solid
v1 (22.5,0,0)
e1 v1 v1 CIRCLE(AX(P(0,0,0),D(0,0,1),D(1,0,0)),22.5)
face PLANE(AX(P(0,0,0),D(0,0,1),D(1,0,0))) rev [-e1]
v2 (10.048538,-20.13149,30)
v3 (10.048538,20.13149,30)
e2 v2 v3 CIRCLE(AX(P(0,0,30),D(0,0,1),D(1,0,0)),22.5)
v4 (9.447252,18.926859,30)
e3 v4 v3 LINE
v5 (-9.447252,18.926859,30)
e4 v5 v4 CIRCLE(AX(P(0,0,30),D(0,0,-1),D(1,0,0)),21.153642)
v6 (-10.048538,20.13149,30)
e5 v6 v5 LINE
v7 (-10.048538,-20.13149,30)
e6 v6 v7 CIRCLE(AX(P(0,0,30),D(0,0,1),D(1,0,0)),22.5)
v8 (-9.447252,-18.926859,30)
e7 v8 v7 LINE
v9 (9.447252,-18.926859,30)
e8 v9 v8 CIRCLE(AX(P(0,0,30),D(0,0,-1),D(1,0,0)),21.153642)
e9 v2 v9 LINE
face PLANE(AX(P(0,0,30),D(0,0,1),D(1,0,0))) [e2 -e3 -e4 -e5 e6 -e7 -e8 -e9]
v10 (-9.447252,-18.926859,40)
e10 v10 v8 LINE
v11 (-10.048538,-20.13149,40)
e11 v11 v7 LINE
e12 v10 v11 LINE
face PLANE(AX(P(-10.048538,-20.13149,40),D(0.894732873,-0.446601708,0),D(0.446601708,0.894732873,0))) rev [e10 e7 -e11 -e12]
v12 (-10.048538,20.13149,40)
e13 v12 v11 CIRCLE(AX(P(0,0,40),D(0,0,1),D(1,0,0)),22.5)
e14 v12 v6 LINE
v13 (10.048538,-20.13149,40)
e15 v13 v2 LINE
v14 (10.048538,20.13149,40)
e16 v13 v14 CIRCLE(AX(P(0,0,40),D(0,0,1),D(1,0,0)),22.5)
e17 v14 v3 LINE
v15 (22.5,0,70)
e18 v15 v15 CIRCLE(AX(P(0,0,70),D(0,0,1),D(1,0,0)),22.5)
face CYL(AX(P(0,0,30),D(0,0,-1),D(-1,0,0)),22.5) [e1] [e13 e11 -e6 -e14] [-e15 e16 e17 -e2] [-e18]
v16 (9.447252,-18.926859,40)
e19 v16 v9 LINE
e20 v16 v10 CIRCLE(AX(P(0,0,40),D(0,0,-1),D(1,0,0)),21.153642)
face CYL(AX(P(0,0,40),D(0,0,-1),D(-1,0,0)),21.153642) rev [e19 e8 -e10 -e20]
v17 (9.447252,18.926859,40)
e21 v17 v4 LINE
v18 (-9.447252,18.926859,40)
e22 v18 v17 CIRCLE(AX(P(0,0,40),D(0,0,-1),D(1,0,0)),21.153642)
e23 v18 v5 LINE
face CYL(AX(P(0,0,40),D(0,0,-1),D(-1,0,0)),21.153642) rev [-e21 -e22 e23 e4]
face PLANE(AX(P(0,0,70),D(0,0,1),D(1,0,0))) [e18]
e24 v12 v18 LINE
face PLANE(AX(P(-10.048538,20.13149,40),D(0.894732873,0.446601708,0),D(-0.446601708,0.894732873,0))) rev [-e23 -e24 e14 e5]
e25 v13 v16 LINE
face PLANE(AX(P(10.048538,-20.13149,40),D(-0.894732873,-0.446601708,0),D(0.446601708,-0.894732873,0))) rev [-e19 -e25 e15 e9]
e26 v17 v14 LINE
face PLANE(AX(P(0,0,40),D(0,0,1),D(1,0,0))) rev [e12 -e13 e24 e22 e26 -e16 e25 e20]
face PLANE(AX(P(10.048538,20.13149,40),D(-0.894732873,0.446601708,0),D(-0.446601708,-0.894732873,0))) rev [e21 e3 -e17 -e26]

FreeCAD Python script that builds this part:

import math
import FreeCAD as App
import Part
import Sketcher

V = App.Vector
Q = App.Units.Quantity

doc = App.newDocument("Part")
body = doc.addObject("PartDesign::Body", "Body")

# Sketch on XY plane
sketch1 = body.newObject("Sketcher::SketchObject", "Sketch")
sketch1.AttachmentSupport = (doc.getObject("XY_Plane"), [""])
sketch1.MapMode = "FlatFace"
sketch1.addGeometry(Part.Circle(V(0, 0, 0), V(0, 0, 1), 22.5), False)
sketch1.addConstraint([
    Sketcher.Constraint("Coincident", 0, 3, -1, 1),
    Sketcher.Constraint("Diameter", 0, Q("45 mm")),
])
pad1 = body.newObject("PartDesign::Pad", "Pad")
pad1.Profile = sketch1
pad1.Length = 30

# Sketch on XY plane
sketch2 = body.newObject("Sketcher::SketchObject", "Sketch001")
sketch2.AttachmentSupport = (doc.getObject("XY_Plane"), [""])
sketch2.MapMode = "FlatFace"
sketch2.AttachmentOffset = App.Placement(V(0, 0, 30), App.Rotation())
sketch2.addGeometry([
    Part.LineSegment(V(-10.048538, 20.13149, 0), V(-9.447252, 18.926859, 0)),  # 0
    Part.ArcOfCircle(Part.Circle(V(0, 0, 0), V(0, 0, 1), 21.153642), math.radians(63.474139), math.radians(116.525861)),  # 1
    Part.LineSegment(V(9.447252, 18.926859, 0), V(10.048538, 20.13149, 0)),  # 2
    Part.ArcOfCircle(Part.Circle(V(0, 0, 0), V(0, 0, 1), 22.5), math.radians(63.474139), math.radians(116.525861)),  # 3
    Part.LineSegment(V(-9.447252, -18.926859, 0), V(-10.048538, -20.13149, 0)),  # 4
    Part.ArcOfCircle(Part.Circle(V(0, 0, 0), V(0, 0, 1), 22.5), math.radians(-116.525861), math.radians(-63.474139)),  # 5
    Part.LineSegment(V(10.048538, -20.13149, 0), V(9.447252, -18.926859, 0)),  # 6
    Part.ArcOfCircle(Part.Circle(V(0, 0, 0), V(0, 0, 1), 21.153642), math.radians(-116.525861), math.radians(-63.474139)),  # 7
], False)
sketch2.addConstraint([
    Sketcher.Constraint("Coincident", 0, 2, 1, 2),
    Sketcher.Constraint("Coincident", 1, 1, 2, 1),
    Sketcher.Constraint("Coincident", 2, 2, 3, 1),
    Sketcher.Constraint("Coincident", 3, 2, 0, 1),
    Sketcher.Constraint("Coincident", 4, 2, 5, 1),
    Sketcher.Constraint("Coincident", 5, 2, 6, 1),
    Sketcher.Constraint("Coincident", 6, 2, 7, 2),
    Sketcher.Constraint("Coincident", 7, 1, 4, 1),
    Sketcher.Constraint("Coincident", 1, 3, -1, 1),
    Sketcher.Constraint("Coincident", 3, 3, -1, 1),
    Sketcher.Constraint("Coincident", 5, 3, -1, 1),
    Sketcher.Constraint("Coincident", 7, 3, -1, 1),
    Sketcher.Constraint("Equal", 3, 5),
    Sketcher.Constraint("Equal", 1, 7),
    Sketcher.Constraint("Parallel", 2, 4),
    Sketcher.Constraint("Parallel", 0, 6),
    Sketcher.Constraint("Horizontal", 0, 2, 1, 1),
    Sketcher.Constraint("Horizontal", 2, 2, 3, 2),
    Sketcher.Constraint("Horizontal", 4, 2, 5, 2),
    Sketcher.Constraint("Vertical", 3, 2, 4, 2),
    Sketcher.Constraint("Radius", 3, Q("22.5 mm")),
    Sketcher.Constraint("Radius", 1, Q("21.153642 mm")),
    Sketcher.Constraint("DistanceY", -1, 1, 0, 2, Q("18.926859 mm")),
    Sketcher.Constraint("DistanceX", -1, 1, 2, 2, Q("10.048538 mm")),
])
pad2 = body.newObject("PartDesign::Pad", "Pad001")
pad2.Profile = sketch2
pad2.Length = 10

# Sketch on XY plane
sketch3 = body.newObject("Sketcher::SketchObject", "Sketch002")
sketch3.AttachmentSupport = (doc.getObject("XY_Plane"), [""])
sketch3.MapMode = "FlatFace"
sketch3.AttachmentOffset = App.Placement(V(0, 0, 40), App.Rotation())
sketch3.addGeometry(Part.Circle(V(0, 0, 0), V(0, 0, 1), 22.5), False)
sketch3.addConstraint([
    Sketcher.Constraint("Coincident", 0, 3, -1, 1),
    Sketcher.Constraint("Diameter", 0, Q("45 mm")),
])
pad3 = body.newObject("PartDesign::Pad", "Pad002")
pad3.Profile = sketch3
pad3.Length = 30

doc.recompute()
